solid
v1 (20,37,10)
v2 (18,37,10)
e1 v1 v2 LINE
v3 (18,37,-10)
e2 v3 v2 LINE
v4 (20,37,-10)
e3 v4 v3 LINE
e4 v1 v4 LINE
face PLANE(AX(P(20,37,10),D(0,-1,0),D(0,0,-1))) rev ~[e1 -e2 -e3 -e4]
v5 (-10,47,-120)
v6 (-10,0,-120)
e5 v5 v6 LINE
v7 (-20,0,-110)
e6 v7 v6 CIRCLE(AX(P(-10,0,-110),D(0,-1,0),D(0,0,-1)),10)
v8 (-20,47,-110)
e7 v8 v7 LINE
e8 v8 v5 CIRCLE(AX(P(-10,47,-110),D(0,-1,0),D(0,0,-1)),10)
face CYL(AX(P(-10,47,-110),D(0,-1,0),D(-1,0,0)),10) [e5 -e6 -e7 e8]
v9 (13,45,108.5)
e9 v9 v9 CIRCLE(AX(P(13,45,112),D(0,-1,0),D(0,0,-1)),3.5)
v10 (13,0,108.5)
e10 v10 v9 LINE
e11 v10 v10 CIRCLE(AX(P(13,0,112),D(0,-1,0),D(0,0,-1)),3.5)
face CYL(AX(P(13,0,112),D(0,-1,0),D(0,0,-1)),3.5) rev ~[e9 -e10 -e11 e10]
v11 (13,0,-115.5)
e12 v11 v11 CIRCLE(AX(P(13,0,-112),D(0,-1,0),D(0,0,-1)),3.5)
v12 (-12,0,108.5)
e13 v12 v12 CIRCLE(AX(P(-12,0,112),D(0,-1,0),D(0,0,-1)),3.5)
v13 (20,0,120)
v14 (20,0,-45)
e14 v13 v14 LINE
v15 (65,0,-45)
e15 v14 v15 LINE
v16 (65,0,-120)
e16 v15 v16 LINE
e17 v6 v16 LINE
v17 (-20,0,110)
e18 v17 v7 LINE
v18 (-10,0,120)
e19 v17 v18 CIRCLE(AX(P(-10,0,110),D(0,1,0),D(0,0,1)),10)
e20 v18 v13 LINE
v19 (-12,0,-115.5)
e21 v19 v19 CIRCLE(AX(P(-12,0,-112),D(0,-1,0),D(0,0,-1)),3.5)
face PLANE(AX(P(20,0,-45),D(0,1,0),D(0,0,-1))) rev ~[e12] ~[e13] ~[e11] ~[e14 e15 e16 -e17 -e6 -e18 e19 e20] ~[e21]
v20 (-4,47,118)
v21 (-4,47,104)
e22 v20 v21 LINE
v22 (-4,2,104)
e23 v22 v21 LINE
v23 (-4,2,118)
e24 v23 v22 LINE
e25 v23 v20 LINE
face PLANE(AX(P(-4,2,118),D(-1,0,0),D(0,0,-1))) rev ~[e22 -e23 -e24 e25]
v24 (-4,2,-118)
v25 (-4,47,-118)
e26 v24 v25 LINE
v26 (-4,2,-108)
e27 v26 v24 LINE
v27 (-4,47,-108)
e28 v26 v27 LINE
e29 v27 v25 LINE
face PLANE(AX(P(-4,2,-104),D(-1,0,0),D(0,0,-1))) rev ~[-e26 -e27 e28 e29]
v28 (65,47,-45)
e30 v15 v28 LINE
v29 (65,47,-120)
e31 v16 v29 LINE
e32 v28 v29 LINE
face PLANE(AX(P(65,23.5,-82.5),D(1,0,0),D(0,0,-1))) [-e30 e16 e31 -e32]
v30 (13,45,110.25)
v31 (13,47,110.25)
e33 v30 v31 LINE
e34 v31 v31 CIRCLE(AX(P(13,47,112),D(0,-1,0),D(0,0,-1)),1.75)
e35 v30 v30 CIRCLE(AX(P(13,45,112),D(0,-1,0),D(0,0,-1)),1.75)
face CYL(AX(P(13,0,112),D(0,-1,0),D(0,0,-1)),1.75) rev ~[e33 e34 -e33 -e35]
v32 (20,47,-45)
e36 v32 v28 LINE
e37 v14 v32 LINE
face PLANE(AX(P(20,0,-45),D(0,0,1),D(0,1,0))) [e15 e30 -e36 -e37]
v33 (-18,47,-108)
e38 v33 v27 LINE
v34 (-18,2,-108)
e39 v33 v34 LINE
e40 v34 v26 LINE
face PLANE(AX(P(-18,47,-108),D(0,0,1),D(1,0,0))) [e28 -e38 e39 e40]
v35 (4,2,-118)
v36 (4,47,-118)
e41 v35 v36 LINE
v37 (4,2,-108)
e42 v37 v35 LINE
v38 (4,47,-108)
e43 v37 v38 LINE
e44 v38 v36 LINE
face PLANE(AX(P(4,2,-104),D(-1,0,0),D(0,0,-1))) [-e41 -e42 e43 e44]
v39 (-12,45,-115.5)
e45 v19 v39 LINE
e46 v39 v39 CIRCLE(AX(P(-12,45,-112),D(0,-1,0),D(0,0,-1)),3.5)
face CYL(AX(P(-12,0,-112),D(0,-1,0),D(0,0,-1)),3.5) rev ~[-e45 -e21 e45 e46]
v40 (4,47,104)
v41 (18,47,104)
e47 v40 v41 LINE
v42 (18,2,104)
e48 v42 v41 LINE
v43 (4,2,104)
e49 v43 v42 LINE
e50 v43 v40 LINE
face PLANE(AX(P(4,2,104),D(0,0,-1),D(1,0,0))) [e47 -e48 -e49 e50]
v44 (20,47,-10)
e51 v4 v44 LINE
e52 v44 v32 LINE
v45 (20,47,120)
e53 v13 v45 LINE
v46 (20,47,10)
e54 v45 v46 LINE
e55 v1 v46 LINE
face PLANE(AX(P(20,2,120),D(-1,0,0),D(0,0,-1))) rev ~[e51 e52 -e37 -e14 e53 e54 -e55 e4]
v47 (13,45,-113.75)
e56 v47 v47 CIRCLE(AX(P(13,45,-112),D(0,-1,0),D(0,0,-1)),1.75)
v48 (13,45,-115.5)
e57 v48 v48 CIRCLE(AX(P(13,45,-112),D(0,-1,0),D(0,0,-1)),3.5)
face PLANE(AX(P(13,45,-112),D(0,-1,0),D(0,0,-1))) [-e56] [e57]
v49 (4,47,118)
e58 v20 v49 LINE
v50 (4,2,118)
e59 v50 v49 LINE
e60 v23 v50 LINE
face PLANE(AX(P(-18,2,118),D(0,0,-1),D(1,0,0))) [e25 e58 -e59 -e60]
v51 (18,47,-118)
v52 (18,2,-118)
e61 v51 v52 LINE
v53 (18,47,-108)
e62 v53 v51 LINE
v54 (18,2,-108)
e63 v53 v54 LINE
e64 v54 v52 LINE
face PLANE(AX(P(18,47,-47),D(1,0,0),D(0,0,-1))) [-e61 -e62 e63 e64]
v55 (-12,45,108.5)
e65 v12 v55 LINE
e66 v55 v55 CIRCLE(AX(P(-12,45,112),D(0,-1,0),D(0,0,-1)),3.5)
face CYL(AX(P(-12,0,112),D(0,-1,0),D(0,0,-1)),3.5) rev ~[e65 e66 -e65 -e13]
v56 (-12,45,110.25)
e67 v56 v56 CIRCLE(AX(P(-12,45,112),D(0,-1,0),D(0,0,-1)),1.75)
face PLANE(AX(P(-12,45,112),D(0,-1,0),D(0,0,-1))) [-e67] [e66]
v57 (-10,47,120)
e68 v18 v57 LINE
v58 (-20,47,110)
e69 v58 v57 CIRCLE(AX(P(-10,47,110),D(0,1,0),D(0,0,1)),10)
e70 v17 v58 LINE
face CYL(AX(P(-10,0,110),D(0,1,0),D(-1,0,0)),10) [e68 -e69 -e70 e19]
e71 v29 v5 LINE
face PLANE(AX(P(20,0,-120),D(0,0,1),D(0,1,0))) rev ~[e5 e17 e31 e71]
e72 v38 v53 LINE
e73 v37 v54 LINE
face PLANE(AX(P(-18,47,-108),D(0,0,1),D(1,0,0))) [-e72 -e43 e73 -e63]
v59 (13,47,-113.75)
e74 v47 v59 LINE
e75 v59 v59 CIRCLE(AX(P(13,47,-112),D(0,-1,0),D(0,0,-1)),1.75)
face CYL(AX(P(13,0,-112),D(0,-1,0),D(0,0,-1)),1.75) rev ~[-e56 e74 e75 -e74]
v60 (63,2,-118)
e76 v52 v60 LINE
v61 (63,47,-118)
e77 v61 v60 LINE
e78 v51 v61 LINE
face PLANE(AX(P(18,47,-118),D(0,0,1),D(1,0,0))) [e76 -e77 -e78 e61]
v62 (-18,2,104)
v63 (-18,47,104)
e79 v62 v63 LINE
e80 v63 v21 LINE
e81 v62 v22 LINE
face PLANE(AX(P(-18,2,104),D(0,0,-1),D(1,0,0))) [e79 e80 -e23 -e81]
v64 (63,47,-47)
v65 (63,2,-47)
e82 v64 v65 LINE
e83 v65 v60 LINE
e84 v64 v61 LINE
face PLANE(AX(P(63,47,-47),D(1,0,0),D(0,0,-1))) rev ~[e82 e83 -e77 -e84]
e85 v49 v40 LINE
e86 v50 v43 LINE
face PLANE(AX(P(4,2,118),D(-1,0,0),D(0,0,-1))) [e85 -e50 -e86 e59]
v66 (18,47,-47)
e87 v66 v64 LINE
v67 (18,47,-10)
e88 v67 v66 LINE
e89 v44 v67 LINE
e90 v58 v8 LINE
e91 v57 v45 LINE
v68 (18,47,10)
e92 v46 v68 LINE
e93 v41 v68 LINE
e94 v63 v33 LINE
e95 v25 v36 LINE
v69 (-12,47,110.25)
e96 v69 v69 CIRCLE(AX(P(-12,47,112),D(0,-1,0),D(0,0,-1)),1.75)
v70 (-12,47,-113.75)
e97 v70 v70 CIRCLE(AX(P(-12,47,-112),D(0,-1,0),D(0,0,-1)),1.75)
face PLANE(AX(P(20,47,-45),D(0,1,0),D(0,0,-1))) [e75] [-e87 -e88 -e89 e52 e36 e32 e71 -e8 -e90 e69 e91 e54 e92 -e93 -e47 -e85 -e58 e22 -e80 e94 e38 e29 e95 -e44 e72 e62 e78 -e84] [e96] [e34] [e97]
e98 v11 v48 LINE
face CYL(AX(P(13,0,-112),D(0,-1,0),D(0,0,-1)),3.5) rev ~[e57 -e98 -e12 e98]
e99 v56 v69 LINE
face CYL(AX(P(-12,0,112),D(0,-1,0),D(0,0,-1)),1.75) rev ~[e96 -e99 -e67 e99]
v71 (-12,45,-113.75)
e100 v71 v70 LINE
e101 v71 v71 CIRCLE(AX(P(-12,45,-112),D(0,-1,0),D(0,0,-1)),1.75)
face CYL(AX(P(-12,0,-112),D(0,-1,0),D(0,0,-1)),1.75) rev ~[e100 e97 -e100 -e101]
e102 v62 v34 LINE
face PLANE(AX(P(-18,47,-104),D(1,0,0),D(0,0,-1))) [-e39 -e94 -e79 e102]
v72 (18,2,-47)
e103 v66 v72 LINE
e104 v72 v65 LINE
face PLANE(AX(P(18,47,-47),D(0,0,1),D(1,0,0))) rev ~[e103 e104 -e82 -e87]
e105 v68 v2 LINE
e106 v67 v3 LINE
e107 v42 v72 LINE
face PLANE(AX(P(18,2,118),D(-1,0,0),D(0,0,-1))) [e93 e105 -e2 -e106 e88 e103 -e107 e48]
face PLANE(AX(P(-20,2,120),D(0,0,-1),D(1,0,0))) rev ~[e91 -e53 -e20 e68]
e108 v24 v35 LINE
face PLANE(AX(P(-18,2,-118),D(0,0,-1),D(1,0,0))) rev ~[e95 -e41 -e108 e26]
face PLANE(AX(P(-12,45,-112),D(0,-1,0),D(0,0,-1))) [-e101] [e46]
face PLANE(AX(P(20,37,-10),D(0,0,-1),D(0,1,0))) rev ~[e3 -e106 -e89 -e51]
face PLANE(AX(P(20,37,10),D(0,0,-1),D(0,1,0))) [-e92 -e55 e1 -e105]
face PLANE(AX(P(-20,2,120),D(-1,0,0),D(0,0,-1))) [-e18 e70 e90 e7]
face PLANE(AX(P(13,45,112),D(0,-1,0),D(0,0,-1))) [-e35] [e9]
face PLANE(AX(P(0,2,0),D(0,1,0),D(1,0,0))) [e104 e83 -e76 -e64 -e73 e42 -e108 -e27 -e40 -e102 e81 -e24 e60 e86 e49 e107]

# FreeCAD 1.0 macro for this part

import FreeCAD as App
import Part
import Sketcher
from FreeCAD import Vector


def edges_at(feature, points):
    """Names of the edges that pass closest to the given points."""
    edges = feature.Shape.Edges
    near = lambda p: min(range(len(edges)), key=lambda i: edges[i].distToShape(Part.Vertex(*p))[0])
    return sorted({f"Edge{near(p) + 1}" for p in points})

doc = App.newDocument("Part")
params = doc.addObject("Spreadsheet::Sheet", "Params")
for row, (alias, value) in enumerate([
    ("sketch1_width", "40 mm"),
    ("sketch1_height", "240 mm"),
    ("pad1_length", "2 mm"),
    ("sketch2_width", "40 mm"),
    ("sketch2_width2", "36 mm"),
    ("sketch2_height", "240 mm"),
    ("sketch2_height2", "236 mm"),
    ("pad2_length", "45 mm"),
    ("sketch3_width", "14 mm"),
    ("pad3_length", "45 mm"),
    ("sketch4_diameter", "3.5 mm"),
    ("pocket1_length", "90 mm"),
    ("sketch5_diameter", "7 mm"),
    ("pocket2_length", "45 mm"),
    ("sketch6_width", "10 mm"),
    ("sketch6_height", "20 mm"),
    ("pocket3_length", "10 mm"),
    ("fillet_radius", "10 mm"),
    ("fillet2_radius", "10 mm"),
    ("sketch7_width", "47 mm"),
    ("sketch7_height", "75 mm"),
    ("pad4_length", "45 mm"),
    ("sketch8_width", "45 mm"),
    ("sketch8_height", "71 mm"),
    ("pocket4_length", "45 mm"),
    ("sketch9_width", "36 mm"),
    ("sketch9_height", "4 mm"),
    ("pocket5_length", "45 mm"),
], start=1):
    params.set(f"A{row}", alias)
    params.set(f"B{row}", "=" + value)
    params.setAlias(f"B{row}", alias)

body = doc.addObject("PartDesign::Body", "Body")

sketch1 = body.newObject("Sketcher::SketchObject", "Sketch")
sketch1.AttachmentSupport = (doc.getObject("XZ_Plane"), [""])
sketch1.MapMode = "FlatFace"
sketch1.addGeometry([
    Part.LineSegment(Vector(-20, -120, 0), Vector(-20, 120, 0)),
    Part.LineSegment(Vector(-20, 120, 0), Vector(20, 120, 0)),
    Part.LineSegment(Vector(20, 120, 0), Vector(20, -120, 0)),
    Part.LineSegment(Vector(20, -120, 0), Vector(-20, -120, 0)),
], False)
sketch1.addConstraint([
    Sketcher.Constraint("Coincident", 0, 2, 1, 1),
    Sketcher.Constraint("Coincident", 1, 2, 2, 1),
    Sketcher.Constraint("Coincident", 2, 2, 3, 1),
    Sketcher.Constraint("Coincident", 3, 2, 0, 1),
    Sketcher.Constraint("Vertical", 0),
    Sketcher.Constraint("Horizontal", 1),
    Sketcher.Constraint("Vertical", 2),
    Sketcher.Constraint("Horizontal", 3),
    Sketcher.Constraint("Symmetric", 0, 2, 2, 2, -1, 1),
    Sketcher.Constraint("DistanceX", 1, 1, 1, 2, 40.0),
    Sketcher.Constraint("DistanceY", 0, 1, 0, 2, 240.0),
])
sketch1.setExpression("Constraints[9]", "Params.sketch1_width")
sketch1.setExpression("Constraints[10]", "Params.sketch1_height")
pad1 = body.newObject("PartDesign::Pad", "Pad")
pad1.Profile = sketch1
pad1.setExpression("Length", "Params.pad1_length")
pad1.Reversed = True

sketch2 = body.newObject("Sketcher::SketchObject", "Sketch001")
sketch2.AttachmentSupport = (doc.getObject("XZ_Plane"), [""])
sketch2.MapMode = "FlatFace"
sketch2.AttachmentOffset = App.Placement(Vector(0, 0, -2), App.Rotation())
sketch2.addGeometry([
    Part.LineSegment(Vector(-20, -120, 0), Vector(-20, 120, 0)),
    Part.LineSegment(Vector(-20, 120, 0), Vector(20, 120, 0)),
    Part.LineSegment(Vector(20, 120, 0), Vector(20, -120, 0)),
    Part.LineSegment(Vector(20, -120, 0), Vector(-20, -120, 0)),
    Part.LineSegment(Vector(18, 118, 0), Vector(-18, 118, 0)),
    Part.LineSegment(Vector(-18, 118, 0), Vector(-18, -118, 0)),
    Part.LineSegment(Vector(-18, -118, 0), Vector(18, -118, 0)),
    Part.LineSegment(Vector(18, -118, 0), Vector(18, 118, 0)),
], False)
sketch2.addConstraint([
    Sketcher.Constraint("Coincident", 0, 2, 1, 1),
    Sketcher.Constraint("Coincident", 1, 2, 2, 1),
    Sketcher.Constraint("Coincident", 2, 2, 3, 1),
    Sketcher.Constraint("Coincident", 3, 2, 0, 1),
    Sketcher.Constraint("Coincident", 4, 2, 5, 1),
    Sketcher.Constraint("Coincident", 5, 2, 6, 1),
    Sketcher.Constraint("Coincident", 6, 2, 7, 1),
    Sketcher.Constraint("Coincident", 7, 2, 4, 1),
    Sketcher.Constraint("Vertical", 0),
    Sketcher.Constraint("Horizontal", 1),
    Sketcher.Constraint("Vertical", 2),
    Sketcher.Constraint("Horizontal", 3),
    Sketcher.Constraint("Horizontal", 4),
    Sketcher.Constraint("Vertical", 5),
    Sketcher.Constraint("Horizontal", 6),
    Sketcher.Constraint("Vertical", 7),
    Sketcher.Constraint("Symmetric", 0, 2, 2, 2, -1, 1),
    Sketcher.Constraint("Symmetric", 4, 2, 6, 2, -1, 1),
    Sketcher.Constraint("DistanceX", 1, 1, 1, 2, 40.0),
    Sketcher.Constraint("DistanceX", 4, 2, 4, 1, 36.0),
    Sketcher.Constraint("DistanceY", 0, 1, 0, 2, 240.0),
    Sketcher.Constraint("DistanceY", 5, 2, 5, 1, 236.0),
])
sketch2.setExpression("Constraints[18]", "Params.sketch2_width")
sketch2.setExpression("Constraints[19]", "Params.sketch2_width2")
sketch2.setExpression("Constraints[20]", "Params.sketch2_height")
sketch2.setExpression("Constraints[21]", "Params.sketch2_height2")
pad2 = body.newObject("PartDesign::Pad", "Pad001")
pad2.Profile = sketch2
pad2.setExpression("Length", "Params.pad2_length")
pad2.Reversed = True

sketch3 = body.newObject("Sketcher::SketchObject", "Sketch002")
sketch3.AttachmentSupport = (doc.getObject("XZ_Plane"), [""])
sketch3.MapMode = "FlatFace"
sketch3.AttachmentOffset = App.Placement(Vector(0, 0, -2), App.Rotation())
sketch3.addGeometry([
    Part.LineSegment(Vector(-18, -118, 0), Vector(-18, -104, 0)),
    Part.LineSegment(Vector(-18, -104, 0), Vector(-4, -104, 0)),
    Part.LineSegment(Vector(-4, -104, 0), Vector(-4, -118, 0)),
    Part.LineSegment(Vector(-4, -118, 0), Vector(-18, -118, 0)),
    Part.LineSegment(Vector(4, -118, 0), Vector(4, -104, 0)),
    Part.LineSegment(Vector(4, -104, 0), Vector(18, -104, 0)),
    Part.LineSegment(Vector(18, -104, 0), Vector(18, -118, 0)),
    Part.LineSegment(Vector(18, -118, 0), Vector(4, -118, 0)),
    Part.LineSegment(Vector(-18, 104, 0), Vector(-18, 118, 0)),
    Part.LineSegment(Vector(-18, 118, 0), Vector(-4, 118, 0)),
    Part.LineSegment(Vector(-4, 118, 0), Vector(-4, 104, 0)),
    Part.LineSegment(Vector(-4, 104, 0), Vector(-18, 104, 0)),
    Part.LineSegment(Vector(4, 104, 0), Vector(4, 118, 0)),
    Part.LineSegment(Vector(4, 118, 0), Vector(18, 118, 0)),
    Part.LineSegment(Vector(18, 118, 0), Vector(18, 104, 0)),
    Part.LineSegment(Vector(18, 104, 0), Vector(4, 104, 0)),
], False)
sketch3.addConstraint([
    Sketcher.Constraint("Coincident", 0, 2, 1, 1),
    Sketcher.Constraint("Coincident", 1, 2, 2, 1),
    Sketcher.Constraint("Coincident", 2, 2, 3, 1),
    Sketcher.Constraint("Coincident", 3, 2, 0, 1),
    Sketcher.Constraint("Coincident", 4, 2, 5, 1),
    Sketcher.Constraint("Coincident", 5, 2, 6, 1),
    Sketcher.Constraint("Coincident", 6, 2, 7, 1),
    Sketcher.Constraint("Coincident", 7, 2, 4, 1),
    Sketcher.Constraint("Coincident", 8, 2, 9, 1),
    Sketcher.Constraint("Coincident", 9, 2, 10, 1),
    Sketcher.Constraint("Coincident", 10, 2, 11, 1),
    Sketcher.Constraint("Coincident", 11, 2, 8, 1),
    Sketcher.Constraint("Coincident", 12, 2, 13, 1),
    Sketcher.Constraint("Coincident", 13, 2, 14, 1),
    Sketcher.Constraint("Coincident", 14, 2, 15, 1),
    Sketcher.Constraint("Coincident", 15, 2, 12, 1),
    Sketcher.Constraint("Vertical", 0),
    Sketcher.Constraint("Horizontal", 1),
    Sketcher.Constraint("Vertical", 2),
    Sketcher.Constraint("Horizontal", 3),
    Sketcher.Constraint("Vertical", 4),
    Sketcher.Constraint("Horizontal", 5),
    Sketcher.Constraint("Vertical", 6),
    Sketcher.Constraint("Horizontal", 7),
    Sketcher.Constraint("Vertical", 8),
    Sketcher.Constraint("Horizontal", 9),
    Sketcher.Constraint("Vertical", 10),
    Sketcher.Constraint("Horizontal", 11),
    Sketcher.Constraint("Vertical", 12),
    Sketcher.Constraint("Horizontal", 13),
    Sketcher.Constraint("Vertical", 14),
    Sketcher.Constraint("Horizontal", 15),
    Sketcher.Constraint("Symmetric", 6, 2, 8, 2, -1, 1),
    Sketcher.Constraint("Symmetric", 4, 2, 10, 2, -1, 1),
    Sketcher.Constraint("Symmetric", 2, 2, 12, 2, -1, 1),
    Sketcher.Constraint("Symmetric", 0, 2, 14, 2, -1, 1),
    Sketcher.Constraint("Symmetric", 1, 2, 4, 2, -2),
    Sketcher.Constraint("Symmetric", 3, 2, 6, 2, -2),
    Sketcher.Constraint("Equal", 15, 0),
    Sketcher.Constraint("DistanceX", 1, 1, 1, 2, 14.0),
    Sketcher.Constraint("DistanceX", 0, 2, -1, 1, 18.0),
    Sketcher.Constraint("DistanceY", 0, 2, -1, 1, 104.0),
])
sketch3.setExpression("Constraints[39]", "Params.sketch3_width")
pad3 = body.newObject("PartDesign::Pad", "Pad002")
pad3.Profile = sketch3
pad3.setExpression("Length", "Params.pad3_length")
pad3.Reversed = True

sketch4 = body.newObject("Sketcher::SketchObject", "Sketch003")
sketch4.AttachmentSupport = (doc.getObject("XZ_Plane"), [""])
sketch4.MapMode = "FlatFace"
sketch4.addGeometry([
    Part.Circle(Vector(-12, 112, 0), Vector(0, 0, 1), 1.75),
    Part.Circle(Vector(13, 112, 0), Vector(0, 0, 1), 1.75),
    Part.Circle(Vector(-12, -112, 0), Vector(0, 0, 1), 1.75),
    Part.Circle(Vector(13, -112, 0), Vector(0, 0, 1), 1.75),
], False)
sketch4.addConstraint([
    Sketcher.Constraint("Equal", 0, 1),
    Sketcher.Constraint("Equal", 1, 2),
    Sketcher.Constraint("Equal", 2, 3),
    Sketcher.Constraint("Symmetric", 0, 3, 2, 3, -1),
    Sketcher.Constraint("Symmetric", 1, 3, 3, 3, -1),
    Sketcher.Constraint("Horizontal", 0, 3, 1, 3),
    Sketcher.Constraint("Diameter", 0, 3.5),
    Sketcher.Constraint("DistanceX", 0, 3, -1, 1, 12.0),
    Sketcher.Constraint("DistanceY", -1, 1, 0, 3, 112.0),
    Sketcher.Constraint("DistanceX", -1, 1, 1, 3, 13.0),
])
sketch4.setExpression("Constraints[6]", "Params.sketch4_diameter")
pocket1 = body.newObject("PartDesign::Pocket", "Pocket")
pocket1.Profile = sketch4
pocket1.setExpression("Length", "Params.pocket1_length")

sketch5 = body.newObject("Sketcher::SketchObject", "Sketch004")
sketch5.AttachmentSupport = (doc.getObject("XZ_Plane"), [""])
sketch5.MapMode = "FlatFace"
sketch5.addGeometry([
    Part.Circle(Vector(-12, 112, 0), Vector(0, 0, 1), 3.5),
    Part.Circle(Vector(13, 112, 0), Vector(0, 0, 1), 3.5),
    Part.Circle(Vector(-12, -112, 0), Vector(0, 0, 1), 3.5),
    Part.Circle(Vector(13, -112, 0), Vector(0, 0, 1), 3.5),
], False)
sketch5.addConstraint([
    Sketcher.Constraint("Equal", 0, 1),
    Sketcher.Constraint("Equal", 1, 2),
    Sketcher.Constraint("Equal", 2, 3),
    Sketcher.Constraint("Symmetric", 0, 3, 2, 3, -1),
    Sketcher.Constraint("Symmetric", 1, 3, 3, 3, -1),
    Sketcher.Constraint("Horizontal", 0, 3, 1, 3),
    Sketcher.Constraint("Diameter", 0, 7.0),
    Sketcher.Constraint("DistanceX", 0, 3, -1, 1, 12.0),
    Sketcher.Constraint("DistanceY", -1, 1, 0, 3, 112.0),
    Sketcher.Constraint("DistanceX", -1, 1, 1, 3, 13.0),
])
sketch5.setExpression("Constraints[6]", "Params.sketch5_diameter")
pocket2 = body.newObject("PartDesign::Pocket", "Pocket001")
pocket2.Profile = sketch5
pocket2.setExpression("Length", "Params.pocket2_length")

sketch6 = body.newObject("Sketcher::SketchObject", "Sketch005")
sketch6.AttachmentSupport = (doc.getObject("YZ_Plane"), [""])
sketch6.MapMode = "FlatFace"
sketch6.AttachmentOffset = App.Placement(Vector(0, 0, 20), App.Rotation())
sketch6.addGeometry([
    Part.LineSegment(Vector(47, 10, 0), Vector(37, 10, 0)),
    Part.LineSegment(Vector(37, 10, 0), Vector(37, -10, 0)),
    Part.LineSegment(Vector(37, -10, 0), Vector(47, -10, 0)),
    Part.LineSegment(Vector(47, -10, 0), Vector(47, 10, 0)),
], False)
sketch6.addConstraint([
    Sketcher.Constraint("Coincident", 0, 2, 1, 1),
    Sketcher.Constraint("Coincident", 1, 2, 2, 1),
    Sketcher.Constraint("Coincident", 2, 2, 3, 1),
    Sketcher.Constraint("Coincident", 3, 2, 0, 1),
    Sketcher.Constraint("Horizontal", 0),
    Sketcher.Constraint("Vertical", 1),
    Sketcher.Constraint("Horizontal", 2),
    Sketcher.Constraint("Vertical", 3),
    Sketcher.Constraint("DistanceX", 0, 2, 0, 1, 10.0),
    Sketcher.Constraint("DistanceY", 1, 2, 1, 1, 20.0),
    Sketcher.Constraint("DistanceX", -1, 1, 0, 2, 37.0),
    Sketcher.Constraint("DistanceY", -1, 1, 0, 2, 10.0),
])
sketch6.setExpression("Constraints[8]", "Params.sketch6_width")
sketch6.setExpression("Constraints[9]", "Params.sketch6_height")
pocket3 = body.newObject("PartDesign::Pocket", "Pocket002")
pocket3.Profile = sketch6
pocket3.setExpression("Length", "Params.pocket3_length")
doc.recompute()

fillet = body.newObject("PartDesign::Fillet", "Fillet")
fillet.Base = (pocket3, edges_at(pocket3, [(-20, 23.5, -120)]))
fillet.setExpression("Radius", "Params.fillet_radius")
doc.recompute()

fillet2 = body.newObject("PartDesign::Fillet", "Fillet001")
fillet2.Base = (fillet, edges_at(fillet, [(-20, 23.5, 120)]))
fillet2.setExpression("Radius", "Params.fillet2_radius")

sketch7 = body.newObject("Sketcher::SketchObject", "Sketch006")
sketch7.AttachmentSupport = (doc.getObject("YZ_Plane"), [""])
sketch7.MapMode = "FlatFace"
sketch7.AttachmentOffset = App.Placement(Vector(0, 0, 20), App.Rotation())
sketch7.addGeometry([
    Part.LineSegment(Vector(47, -45, 0), Vector(0, -45, 0)),
    Part.LineSegment(Vector(0, -45, 0), Vector(0, -120, 0)),
    Part.LineSegment(Vector(0, -120, 0), Vector(47, -120, 0)),
    Part.LineSegment(Vector(47, -120, 0), Vector(47, -45, 0)),
], False)
sketch7.addConstraint([
    Sketcher.Constraint("Coincident", 0, 2, 1, 1),
    Sketcher.Constraint("Coincident", 1, 2, 2, 1),
    Sketcher.Constraint("Coincident", 2, 2, 3, 1),
    Sketcher.Constraint("Coincident", 3, 2, 0, 1),
    Sketcher.Constraint("Horizontal", 0),
    Sketcher.Constraint("Vertical", 1),
    Sketcher.Constraint("Horizontal", 2),
    Sketcher.Constraint("Vertical", 3),
    Sketcher.Constraint("PointOnObject", 0, 2, -2),
    Sketcher.Constraint("DistanceX", 0, 2, 0, 1, 47.0),
    Sketcher.Constraint("DistanceY", 1, 2, 1, 1, 75.0),
    Sketcher.Constraint("DistanceY", 0, 2, -1, 1, 45.0),
])
sketch7.setExpression("Constraints[9]", "Params.sketch7_width")
sketch7.setExpression("Constraints[10]", "Params.sketch7_height")
pad4 = body.newObject("PartDesign::Pad", "Pad003")
pad4.Profile = sketch7
pad4.setExpression("Length", "Params.pad4_length")

sketch8 = body.newObject("Sketcher::SketchObject", "Sketch007")
sketch8.AttachmentSupport = (doc.getObject("XZ_Plane"), [""])
sketch8.MapMode = "FlatFace"
sketch8.AttachmentOffset = App.Placement(Vector(0, 0, -47), App.Rotation())
sketch8.addGeometry([
    Part.LineSegment(Vector(18, -118, 0), Vector(18, -47, 0)),
    Part.LineSegment(Vector(18, -47, 0), Vector(63, -47, 0)),
    Part.LineSegment(Vector(63, -47, 0), Vector(63, -118, 0)),
    Part.LineSegment(Vector(63, -118, 0), Vector(18, -118, 0)),
], False)
sketch8.addConstraint([
    Sketcher.Constraint("Coincident", 0, 2, 1, 1),
    Sketcher.Constraint("Coincident", 1, 2, 2, 1),
    Sketcher.Constraint("Coincident", 2, 2, 3, 1),
    Sketcher.Constraint("Coincident", 3, 2, 0, 1),
    Sketcher.Constraint("Vertical", 0),
    Sketcher.Constraint("Horizontal", 1),
    Sketcher.Constraint("Vertical", 2),
    Sketcher.Constraint("Horizontal", 3),
    Sketcher.Constraint("DistanceX", 1, 1, 1, 2, 45.0),
    Sketcher.Constraint("DistanceY", 0, 1, 0, 2, 71.0),
    Sketcher.Constraint("DistanceX", -1, 1, 0, 2, 18.0),
    Sketcher.Constraint("DistanceY", 0, 2, -1, 1, 47.0),
])
sketch8.setExpression("Constraints[8]", "Params.sketch8_width")
sketch8.setExpression("Constraints[9]", "Params.sketch8_height")
pocket4 = body.newObject("PartDesign::Pocket", "Pocket003")
pocket4.Profile = sketch8
pocket4.setExpression("Length", "Params.pocket4_length")
pocket4.Reversed = True

sketch9 = body.newObject("Sketcher::SketchObject", "Sketch008")
sketch9.AttachmentSupport = (doc.getObject("XZ_Plane"), [""])
sketch9.MapMode = "FlatFace"
sketch9.AttachmentOffset = App.Placement(Vector(0, 0, -47), App.Rotation())
sketch9.addGeometry([
    Part.LineSegment(Vector(-18, -108, 0), Vector(-18, -104, 0)),
    Part.LineSegment(Vector(-18, -104, 0), Vector(18, -104, 0)),
    Part.LineSegment(Vector(18, -104, 0), Vector(18, -108, 0)),
    Part.LineSegment(Vector(18, -108, 0), Vector(-18, -108, 0)),
], False)
sketch9.addConstraint([
    Sketcher.Constraint("Coincident", 0, 2, 1, 1),
    Sketcher.Constraint("Coincident", 1, 2, 2, 1),
    Sketcher.Constraint("Coincident", 2, 2, 3, 1),
    Sketcher.Constraint("Coincident", 3, 2, 0, 1),
    Sketcher.Constraint("Vertical", 0),
    Sketcher.Constraint("Horizontal", 1),
    Sketcher.Constraint("Vertical", 2),
    Sketcher.Constraint("Horizontal", 3),
    Sketcher.Constraint("DistanceX", 1, 1, 1, 2, 36.0),
    Sketcher.Constraint("DistanceY", 0, 1, 0, 2, 4.0),
    Sketcher.Constraint("DistanceX", 0, 2, -1, 1, 18.0),
    Sketcher.Constraint("DistanceY", 0, 2, -1, 1, 104.0),
])
sketch9.setExpression("Constraints[8]", "Params.sketch9_width")
sketch9.setExpression("Constraints[9]", "Params.sketch9_height")
pocket5 = body.newObject("PartDesign::Pocket", "Pocket004")
pocket5.Profile = sketch9
pocket5.setExpression("Length", "Params.pocket5_length")
pocket5.Reversed = True

doc.recompute()
